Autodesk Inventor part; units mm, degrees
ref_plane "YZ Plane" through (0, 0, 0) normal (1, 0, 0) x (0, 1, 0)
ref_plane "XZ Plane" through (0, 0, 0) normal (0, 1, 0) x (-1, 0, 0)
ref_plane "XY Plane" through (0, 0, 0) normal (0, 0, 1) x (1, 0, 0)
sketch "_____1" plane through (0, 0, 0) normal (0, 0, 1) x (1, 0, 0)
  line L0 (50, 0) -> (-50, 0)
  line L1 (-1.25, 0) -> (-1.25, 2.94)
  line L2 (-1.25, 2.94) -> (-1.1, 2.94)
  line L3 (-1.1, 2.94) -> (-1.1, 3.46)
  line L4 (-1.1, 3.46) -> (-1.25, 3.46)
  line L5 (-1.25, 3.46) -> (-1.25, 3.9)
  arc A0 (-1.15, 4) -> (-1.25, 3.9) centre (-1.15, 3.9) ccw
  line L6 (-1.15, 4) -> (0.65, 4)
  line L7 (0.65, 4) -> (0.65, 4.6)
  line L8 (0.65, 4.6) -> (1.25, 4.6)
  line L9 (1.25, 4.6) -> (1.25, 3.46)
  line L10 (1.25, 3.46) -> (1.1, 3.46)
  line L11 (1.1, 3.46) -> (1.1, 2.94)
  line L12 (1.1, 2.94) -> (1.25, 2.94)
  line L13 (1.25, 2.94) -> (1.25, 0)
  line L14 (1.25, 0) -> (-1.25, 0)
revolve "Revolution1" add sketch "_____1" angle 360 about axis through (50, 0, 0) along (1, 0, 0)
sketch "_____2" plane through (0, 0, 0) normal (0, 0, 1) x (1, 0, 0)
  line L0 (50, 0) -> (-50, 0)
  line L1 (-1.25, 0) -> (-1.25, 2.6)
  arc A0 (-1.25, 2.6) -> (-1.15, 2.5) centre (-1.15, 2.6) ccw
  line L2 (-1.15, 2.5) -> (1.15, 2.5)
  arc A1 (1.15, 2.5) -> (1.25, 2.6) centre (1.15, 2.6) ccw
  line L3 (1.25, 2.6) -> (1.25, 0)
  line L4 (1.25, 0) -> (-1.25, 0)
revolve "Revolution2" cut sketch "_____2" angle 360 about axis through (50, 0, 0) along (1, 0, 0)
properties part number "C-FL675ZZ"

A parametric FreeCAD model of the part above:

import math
import FreeCAD as App
import Part
import Sketcher
from FreeCAD import Vector
Q = App.Units.Quantity

doc = App.newDocument("Part")
body = doc.addObject("PartDesign::Body", "Body")

sketch1 = body.newObject("Sketcher::SketchObject", "Sketch")
sketch1.AttachmentSupport = (doc.getObject("XY_Plane"), [""])
sketch1.MapMode = "FlatFace"
sketch1.addGeometry(Part.LineSegment(Vector(-1.25, 0, 0), Vector(1.25, 0, 0)), False)
sketch1.addGeometry(Part.LineSegment(Vector(1.25, 0, 0), Vector(1.25, 2.94, 0)), False)
sketch1.addGeometry(Part.LineSegment(Vector(1.25, 2.94, 0), Vector(1.1, 2.94, 0)), False)
sketch1.addGeometry(Part.LineSegment(Vector(1.1, 2.94, 0), Vector(1.1, 3.46, 0)), False)
sketch1.addGeometry(Part.LineSegment(Vector(1.1, 3.46, 0), Vector(1.25, 3.46, 0)), False)
sketch1.addGeometry(Part.LineSegment(Vector(1.25, 3.46, 0), Vector(1.25, 4.6, 0)), False)
sketch1.addGeometry(Part.LineSegment(Vector(1.25, 4.6, 0), Vector(0.65, 4.6, 0)), False)
sketch1.addGeometry(Part.LineSegment(Vector(0.65, 4.6, 0), Vector(0.65, 4, 0)), False)
sketch1.addGeometry(Part.LineSegment(Vector(0.65, 4, 0), Vector(-1.15, 4, 0)), False)
sketch1.addGeometry(Part.ArcOfCircle(Part.Circle(Vector(-1.15, 3.9, 0), Vector(0, 0, 1), 0.1), math.radians(90), math.radians(180)), False)
sketch1.addGeometry(Part.LineSegment(Vector(-1.25, 3.9, 0), Vector(-1.25, 3.46, 0)), False)
sketch1.addGeometry(Part.LineSegment(Vector(-1.25, 3.46, 0), Vector(-1.1, 3.46, 0)), False)
sketch1.addGeometry(Part.LineSegment(Vector(-1.1, 3.46, 0), Vector(-1.1, 2.94, 0)), False)
sketch1.addGeometry(Part.LineSegment(Vector(-1.1, 2.94, 0), Vector(-1.25, 2.94, 0)), False)
sketch1.addGeometry(Part.LineSegment(Vector(-1.25, 2.94, 0), Vector(-1.25, 0, 0)), False)
sketch1.addConstraint(Sketcher.Constraint("Coincident", 0, 2, 1, 1))
sketch1.addConstraint(Sketcher.Constraint("Coincident", 1, 2, 2, 1))
sketch1.addConstraint(Sketcher.Constraint("Coincident", 2, 2, 3, 1))
sketch1.addConstraint(Sketcher.Constraint("Coincident", 3, 2, 4, 1))
sketch1.addConstraint(Sketcher.Constraint("Coincident", 4, 2, 5, 1))
sketch1.addConstraint(Sketcher.Constraint("Coincident", 5, 2, 6, 1))
sketch1.addConstraint(Sketcher.Constraint("Coincident", 6, 2, 7, 1))
sketch1.addConstraint(Sketcher.Constraint("Coincident", 7, 2, 8, 1))
sketch1.addConstraint(Sketcher.Constraint("Tangent", 8, 2, 9, 1))
sketch1.addConstraint(Sketcher.Constraint("Tangent", 9, 2, 10, 1))
sketch1.addConstraint(Sketcher.Constraint("Coincident", 10, 2, 11, 1))
sketch1.addConstraint(Sketcher.Constraint("Coincident", 11, 2, 12, 1))
sketch1.addConstraint(Sketcher.Constraint("Coincident", 12, 2, 13, 1))
sketch1.addConstraint(Sketcher.Constraint("Coincident", 13, 2, 14, 1))
sketch1.addConstraint(Sketcher.Constraint("Coincident", 14, 2, 0, 1))
sketch1.addConstraint(Sketcher.Constraint("Horizontal", 0))
sketch1.addConstraint(Sketcher.Constraint("Vertical", 1))
sketch1.addConstraint(Sketcher.Constraint("Horizontal", 2))
sketch1.addConstraint(Sketcher.Constraint("Vertical", 3))
sketch1.addConstraint(Sketcher.Constraint("Horizontal", 4))
sketch1.addConstraint(Sketcher.Constraint("Vertical", 5))
sketch1.addConstraint(Sketcher.Constraint("Horizontal", 6))
sketch1.addConstraint(Sketcher.Constraint("Vertical", 7))
sketch1.addConstraint(Sketcher.Constraint("Horizontal", 8))
sketch1.addConstraint(Sketcher.Constraint("Vertical", 10))
sketch1.addConstraint(Sketcher.Constraint("Horizontal", 11))
sketch1.addConstraint(Sketcher.Constraint("Vertical", 12))
sketch1.addConstraint(Sketcher.Constraint("Horizontal", 13))
sketch1.addConstraint(Sketcher.Constraint("Vertical", 14))
sketch1.addConstraint(Sketcher.Constraint("Symmetric", 0, 2, 14, 2, -1, 1))
sketch1.addConstraint(Sketcher.Constraint("Symmetric", 4, 2, 10, 2, -2))
sketch1.addConstraint(Sketcher.Constraint("Symmetric", 2, 2, 12, 2, -2))
sketch1.addConstraint(Sketcher.Constraint("Vertical", 1, 2, 4, 2))
sketch1.addConstraint(Sketcher.Constraint("Equal", 6, 7))
sketch1.addConstraint(Sketcher.Constraint("Radius", 9, Q("0.1 mm")))
sketch1.addConstraint(Sketcher.Constraint("DistanceX", 0, 1, 0, 2, Q("2.5 mm")))
sketch1.addConstraint(Sketcher.Constraint("DistanceX", 6, 2, 6, 1, Q("0.6 mm")))
sketch1.addConstraint(Sketcher.Constraint("DistanceY", -1, 1, 7, 2, Q("4 mm")))
sketch1.addConstraint(Sketcher.Constraint("DistanceX", 2, 2, 2, 1, Q("0.15 mm")))
sketch1.addConstraint(Sketcher.Constraint("DistanceY", 1, 1, 1, 2, Q("2.94 mm")))
sketch1.addConstraint(Sketcher.Constraint("DistanceY", 3, 1, 3, 2, Q("0.52 mm")))
revolution = body.newObject("PartDesign::Revolution", "Revolution")
revolution.Profile = sketch1
revolution.ReferenceAxis = (sketch1, ["H_Axis"])
revolution.Angle = 360

sketch2 = body.newObject("Sketcher::SketchObject", "Sketch001")
sketch2.AttachmentSupport = (doc.getObject("XY_Plane"), [""])
sketch2.MapMode = "FlatFace"
sketch2.addGeometry(Part.LineSegment(Vector(-1.25, 0, 0), Vector(1.25, 0, 0)), False)
sketch2.addGeometry(Part.LineSegment(Vector(1.25, 0, 0), Vector(1.25, 2.6, 0)), False)
sketch2.addGeometry(Part.ArcOfCircle(Part.Circle(Vector(1.15, 2.6, 0), Vector(0, 0, 1), 0.1), math.radians(-90), math.radians(0)), False)
sketch2.addGeometry(Part.LineSegment(Vector(1.15, 2.5, 0), Vector(-1.15, 2.5, 0)), False)
sketch2.addGeometry(Part.ArcOfCircle(Part.Circle(Vector(-1.15, 2.6, 0), Vector(0, 0, 1), 0.1), math.radians(180), math.radians(270)), False)
sketch2.addGeometry(Part.LineSegment(Vector(-1.25, 2.6, 0), Vector(-1.25, 0, 0)), False)
sketch2.addConstraint(Sketcher.Constraint("Coincident", 0, 2, 1, 1))
sketch2.addConstraint(Sketcher.Constraint("Tangent", 1, 2, 2, 2))
sketch2.addConstraint(Sketcher.Constraint("Tangent", 2, 1, 3, 1))
sketch2.addConstraint(Sketcher.Constraint("Tangent", 3, 2, 4, 2))
sketch2.addConstraint(Sketcher.Constraint("Tangent", 4, 1, 5, 1))
sketch2.addConstraint(Sketcher.Constraint("Coincident", 5, 2, 0, 1))
sketch2.addConstraint(Sketcher.Constraint("Horizontal", 0))
sketch2.addConstraint(Sketcher.Constraint("Vertical", 1))
sketch2.addConstraint(Sketcher.Constraint("Horizontal", 3))
sketch2.addConstraint(Sketcher.Constraint("Vertical", 5))
sketch2.addConstraint(Sketcher.Constraint("Equal", 2, 4))
sketch2.addConstraint(Sketcher.Constraint("Symmetric", 0, 2, 5, 2, -1, 1))
sketch2.addConstraint(Sketcher.Constraint("Radius", 2, Q("0.1 mm")))
sketch2.addConstraint(Sketcher.Constraint("DistanceX", 0, 1, 0, 2, Q("2.5 mm")))
sketch2.addConstraint(Sketcher.Constraint("DistanceY", 1, 1, 1, 2, Q("2.6 mm")))
groove = body.newObject("PartDesign::Groove", "Groove")
groove.Profile = sketch2
groove.ReferenceAxis = (sketch2, ["H_Axis"])
groove.Angle = 360

doc.recompute()
